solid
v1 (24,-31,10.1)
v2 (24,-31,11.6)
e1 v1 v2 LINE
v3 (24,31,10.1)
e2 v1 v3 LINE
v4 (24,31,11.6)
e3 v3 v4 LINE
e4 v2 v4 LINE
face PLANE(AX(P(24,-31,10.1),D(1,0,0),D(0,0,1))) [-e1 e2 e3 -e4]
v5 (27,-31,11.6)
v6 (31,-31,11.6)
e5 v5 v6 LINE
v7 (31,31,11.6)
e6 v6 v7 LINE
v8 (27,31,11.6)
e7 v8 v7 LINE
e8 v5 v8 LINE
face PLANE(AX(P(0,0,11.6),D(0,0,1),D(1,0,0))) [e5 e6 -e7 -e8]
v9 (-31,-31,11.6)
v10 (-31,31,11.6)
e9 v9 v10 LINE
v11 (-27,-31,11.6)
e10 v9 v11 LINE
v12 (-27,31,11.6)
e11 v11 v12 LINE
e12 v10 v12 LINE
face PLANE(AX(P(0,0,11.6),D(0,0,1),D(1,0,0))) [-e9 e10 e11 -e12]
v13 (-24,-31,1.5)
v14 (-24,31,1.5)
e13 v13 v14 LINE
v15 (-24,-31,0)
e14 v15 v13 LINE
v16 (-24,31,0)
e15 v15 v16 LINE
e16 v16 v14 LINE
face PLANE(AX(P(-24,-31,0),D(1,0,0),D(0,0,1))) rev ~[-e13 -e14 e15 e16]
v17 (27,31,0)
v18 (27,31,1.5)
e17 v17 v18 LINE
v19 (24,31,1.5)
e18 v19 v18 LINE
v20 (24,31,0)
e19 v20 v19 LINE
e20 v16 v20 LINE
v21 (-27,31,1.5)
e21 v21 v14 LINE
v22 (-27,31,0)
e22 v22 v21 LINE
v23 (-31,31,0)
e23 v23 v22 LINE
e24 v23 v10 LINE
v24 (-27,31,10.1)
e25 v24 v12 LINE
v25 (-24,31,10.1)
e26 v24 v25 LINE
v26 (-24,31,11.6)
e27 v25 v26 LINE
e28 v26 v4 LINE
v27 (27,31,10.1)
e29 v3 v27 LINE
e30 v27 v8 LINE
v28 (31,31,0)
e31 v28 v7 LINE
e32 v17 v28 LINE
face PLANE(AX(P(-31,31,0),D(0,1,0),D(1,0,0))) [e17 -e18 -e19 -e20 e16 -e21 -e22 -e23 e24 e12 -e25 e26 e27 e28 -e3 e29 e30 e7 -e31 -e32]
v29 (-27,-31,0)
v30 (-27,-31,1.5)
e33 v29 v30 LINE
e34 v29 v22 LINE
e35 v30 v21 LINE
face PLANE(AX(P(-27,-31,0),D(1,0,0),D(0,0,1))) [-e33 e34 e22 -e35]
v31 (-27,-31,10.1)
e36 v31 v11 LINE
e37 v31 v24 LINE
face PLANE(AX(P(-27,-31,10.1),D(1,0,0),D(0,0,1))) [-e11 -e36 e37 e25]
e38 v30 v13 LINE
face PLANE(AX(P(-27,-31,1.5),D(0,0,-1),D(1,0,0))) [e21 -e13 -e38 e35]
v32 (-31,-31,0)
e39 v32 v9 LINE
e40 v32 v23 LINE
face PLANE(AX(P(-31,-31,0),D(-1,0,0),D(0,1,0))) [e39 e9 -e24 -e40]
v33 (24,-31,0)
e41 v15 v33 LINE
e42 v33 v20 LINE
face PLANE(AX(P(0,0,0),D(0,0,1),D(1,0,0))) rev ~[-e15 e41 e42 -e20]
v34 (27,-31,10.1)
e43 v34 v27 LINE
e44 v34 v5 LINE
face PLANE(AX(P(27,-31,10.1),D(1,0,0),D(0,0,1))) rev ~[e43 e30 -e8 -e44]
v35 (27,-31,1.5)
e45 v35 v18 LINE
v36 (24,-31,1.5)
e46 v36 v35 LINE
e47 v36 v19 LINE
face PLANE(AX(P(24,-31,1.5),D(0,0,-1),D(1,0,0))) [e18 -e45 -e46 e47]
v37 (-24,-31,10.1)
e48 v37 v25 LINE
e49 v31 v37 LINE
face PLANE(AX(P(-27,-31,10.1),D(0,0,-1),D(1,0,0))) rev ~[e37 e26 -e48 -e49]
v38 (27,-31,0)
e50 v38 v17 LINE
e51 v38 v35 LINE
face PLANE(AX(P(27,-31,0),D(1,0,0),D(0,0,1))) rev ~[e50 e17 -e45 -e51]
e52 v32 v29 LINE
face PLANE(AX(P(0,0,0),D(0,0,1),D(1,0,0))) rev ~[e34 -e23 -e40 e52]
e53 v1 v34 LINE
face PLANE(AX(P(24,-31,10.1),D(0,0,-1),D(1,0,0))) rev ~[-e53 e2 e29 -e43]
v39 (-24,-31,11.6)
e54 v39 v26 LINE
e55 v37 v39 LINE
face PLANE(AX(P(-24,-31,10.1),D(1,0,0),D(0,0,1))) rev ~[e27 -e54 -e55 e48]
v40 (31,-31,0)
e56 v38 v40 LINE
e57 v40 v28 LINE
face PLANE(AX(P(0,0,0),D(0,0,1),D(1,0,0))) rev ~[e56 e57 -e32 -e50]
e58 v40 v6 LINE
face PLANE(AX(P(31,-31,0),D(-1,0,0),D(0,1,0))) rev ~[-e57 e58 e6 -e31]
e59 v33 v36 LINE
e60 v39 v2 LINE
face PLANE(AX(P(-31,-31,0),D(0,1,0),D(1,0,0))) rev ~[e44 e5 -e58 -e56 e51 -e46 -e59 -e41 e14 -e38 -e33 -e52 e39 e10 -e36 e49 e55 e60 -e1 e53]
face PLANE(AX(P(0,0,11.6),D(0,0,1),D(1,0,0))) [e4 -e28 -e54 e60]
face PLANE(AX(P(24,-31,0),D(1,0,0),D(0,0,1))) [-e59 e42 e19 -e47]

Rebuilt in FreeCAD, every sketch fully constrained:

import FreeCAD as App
import Part
import Sketcher


def add_polygon(sketch, points):
    """Adds a closed chain of lines whose ends are joined by coincident constraints."""
    first, n = sketch.GeometryCount, len(points)
    for a, b in zip(points, points[1:] + points[:1]):
        sketch.addGeometry(Part.LineSegment(App.Vector(*a, 0), App.Vector(*b, 0)), False)
    for i in range(n):
        sketch.addConstraint(Sketcher.Constraint("Coincident", first + i, 2, first + (i + 1) % n, 1))

doc = App.newDocument("Part")
body = doc.addObject("PartDesign::Body", "Body")

# Sketch on XY plane
sketch1 = doc.addObject("Sketcher::SketchObject", "Sketch")
body.addObject(sketch1)
sketch1.AttachmentSupport = (doc.XY_Plane, [""])
sketch1.MapMode = "FlatFace"
add_polygon(sketch1, [(-31, 31), (-31, -31), (31, -31), (31, 31)])  # lines 0-3
sketch1.addConstraint([
    Sketcher.Constraint("Vertical", 0),
    Sketcher.Constraint("Horizontal", 1),
    Sketcher.Constraint("Vertical", 2),
    Sketcher.Constraint("Horizontal", 3),
    Sketcher.Constraint("Symmetric", 0, 2, 2, 2, -1, 1),
    Sketcher.Constraint("Equal", 3, 0),
    Sketcher.Constraint("DistanceX", 1, 1, 1, 2, 62.0),
])
pad1 = doc.addObject("PartDesign::Pad", "Pad")
body.addObject(pad1)
pad1.Profile = sketch1
pad1.Length = 11.6

# Sketch on XZ plane
sketch2 = doc.addObject("Sketcher::SketchObject", "Sketch001")
body.addObject(sketch2)
sketch2.AttachmentSupport = (doc.XZ_Plane, [""])
sketch2.MapMode = "FlatFace"
sketch2.AttachmentOffset = App.Placement(App.Vector(0, 0, 31), App.Rotation())
add_polygon(sketch2, [(-27, 11.6), (-27, 10.1), (-24, 10.1), (-24, 11.6)])  # lines 0-3
add_polygon(sketch2, [(-27, 1.5), (-27, 0), (-24, 0), (-24, 1.5)])  # lines 4-7
add_polygon(sketch2, [(24, 11.6), (24, 10.1), (27, 10.1), (27, 11.6)])  # lines 8-11
add_polygon(sketch2, [(24, 1.5), (24, 0), (27, 0), (27, 1.5)])  # lines 12-15
sketch2.addConstraint([
    Sketcher.Constraint("Vertical", 0),
    Sketcher.Constraint("Horizontal", 1),
    Sketcher.Constraint("Vertical", 2),
    Sketcher.Constraint("Horizontal", 3),
    Sketcher.Constraint("Vertical", 4),
    Sketcher.Constraint("Horizontal", 5),
    Sketcher.Constraint("Vertical", 6),
    Sketcher.Constraint("Horizontal", 7),
    Sketcher.Constraint("Vertical", 8),
    Sketcher.Constraint("Horizontal", 9),
    Sketcher.Constraint("Vertical", 10),
    Sketcher.Constraint("Horizontal", 11),
    Sketcher.Constraint("Vertical", 12),
    Sketcher.Constraint("Horizontal", 13),
    Sketcher.Constraint("Vertical", 14),
    Sketcher.Constraint("Horizontal", 15),
    Sketcher.Constraint("Symmetric", 5, 2, 12, 2, -1, 1),
    Sketcher.Constraint("Symmetric", 1, 2, 8, 2, -2),
    Sketcher.Constraint("Symmetric", 3, 2, 10, 2, -2),
    Sketcher.Constraint("Symmetric", 4, 2, 13, 2, -2),
    Sketcher.Constraint("Horizontal", 7, 2, 14, 2),
    Sketcher.Constraint("Vertical", 3, 2, 4, 2),
    Sketcher.Constraint("Vertical", 2, 2, 5, 2),
    Sketcher.Constraint("Equal", 2, 4),
    Sketcher.Constraint("DistanceX", 1, 1, 1, 2, 3.0),
    Sketcher.Constraint("DistanceY", 0, 2, 0, 1, 1.5),
    Sketcher.Constraint("DistanceX", 0, 2, -1, 1, 27.0),
    Sketcher.Constraint("DistanceY", -1, 1, 0, 2, 10.1),
])
pocket1 = doc.addObject("PartDesign::Pocket", "Pocket")
body.addObject(pocket1)
pocket1.Profile = sketch2
pocket1.Length = 62

doc.recompute()
